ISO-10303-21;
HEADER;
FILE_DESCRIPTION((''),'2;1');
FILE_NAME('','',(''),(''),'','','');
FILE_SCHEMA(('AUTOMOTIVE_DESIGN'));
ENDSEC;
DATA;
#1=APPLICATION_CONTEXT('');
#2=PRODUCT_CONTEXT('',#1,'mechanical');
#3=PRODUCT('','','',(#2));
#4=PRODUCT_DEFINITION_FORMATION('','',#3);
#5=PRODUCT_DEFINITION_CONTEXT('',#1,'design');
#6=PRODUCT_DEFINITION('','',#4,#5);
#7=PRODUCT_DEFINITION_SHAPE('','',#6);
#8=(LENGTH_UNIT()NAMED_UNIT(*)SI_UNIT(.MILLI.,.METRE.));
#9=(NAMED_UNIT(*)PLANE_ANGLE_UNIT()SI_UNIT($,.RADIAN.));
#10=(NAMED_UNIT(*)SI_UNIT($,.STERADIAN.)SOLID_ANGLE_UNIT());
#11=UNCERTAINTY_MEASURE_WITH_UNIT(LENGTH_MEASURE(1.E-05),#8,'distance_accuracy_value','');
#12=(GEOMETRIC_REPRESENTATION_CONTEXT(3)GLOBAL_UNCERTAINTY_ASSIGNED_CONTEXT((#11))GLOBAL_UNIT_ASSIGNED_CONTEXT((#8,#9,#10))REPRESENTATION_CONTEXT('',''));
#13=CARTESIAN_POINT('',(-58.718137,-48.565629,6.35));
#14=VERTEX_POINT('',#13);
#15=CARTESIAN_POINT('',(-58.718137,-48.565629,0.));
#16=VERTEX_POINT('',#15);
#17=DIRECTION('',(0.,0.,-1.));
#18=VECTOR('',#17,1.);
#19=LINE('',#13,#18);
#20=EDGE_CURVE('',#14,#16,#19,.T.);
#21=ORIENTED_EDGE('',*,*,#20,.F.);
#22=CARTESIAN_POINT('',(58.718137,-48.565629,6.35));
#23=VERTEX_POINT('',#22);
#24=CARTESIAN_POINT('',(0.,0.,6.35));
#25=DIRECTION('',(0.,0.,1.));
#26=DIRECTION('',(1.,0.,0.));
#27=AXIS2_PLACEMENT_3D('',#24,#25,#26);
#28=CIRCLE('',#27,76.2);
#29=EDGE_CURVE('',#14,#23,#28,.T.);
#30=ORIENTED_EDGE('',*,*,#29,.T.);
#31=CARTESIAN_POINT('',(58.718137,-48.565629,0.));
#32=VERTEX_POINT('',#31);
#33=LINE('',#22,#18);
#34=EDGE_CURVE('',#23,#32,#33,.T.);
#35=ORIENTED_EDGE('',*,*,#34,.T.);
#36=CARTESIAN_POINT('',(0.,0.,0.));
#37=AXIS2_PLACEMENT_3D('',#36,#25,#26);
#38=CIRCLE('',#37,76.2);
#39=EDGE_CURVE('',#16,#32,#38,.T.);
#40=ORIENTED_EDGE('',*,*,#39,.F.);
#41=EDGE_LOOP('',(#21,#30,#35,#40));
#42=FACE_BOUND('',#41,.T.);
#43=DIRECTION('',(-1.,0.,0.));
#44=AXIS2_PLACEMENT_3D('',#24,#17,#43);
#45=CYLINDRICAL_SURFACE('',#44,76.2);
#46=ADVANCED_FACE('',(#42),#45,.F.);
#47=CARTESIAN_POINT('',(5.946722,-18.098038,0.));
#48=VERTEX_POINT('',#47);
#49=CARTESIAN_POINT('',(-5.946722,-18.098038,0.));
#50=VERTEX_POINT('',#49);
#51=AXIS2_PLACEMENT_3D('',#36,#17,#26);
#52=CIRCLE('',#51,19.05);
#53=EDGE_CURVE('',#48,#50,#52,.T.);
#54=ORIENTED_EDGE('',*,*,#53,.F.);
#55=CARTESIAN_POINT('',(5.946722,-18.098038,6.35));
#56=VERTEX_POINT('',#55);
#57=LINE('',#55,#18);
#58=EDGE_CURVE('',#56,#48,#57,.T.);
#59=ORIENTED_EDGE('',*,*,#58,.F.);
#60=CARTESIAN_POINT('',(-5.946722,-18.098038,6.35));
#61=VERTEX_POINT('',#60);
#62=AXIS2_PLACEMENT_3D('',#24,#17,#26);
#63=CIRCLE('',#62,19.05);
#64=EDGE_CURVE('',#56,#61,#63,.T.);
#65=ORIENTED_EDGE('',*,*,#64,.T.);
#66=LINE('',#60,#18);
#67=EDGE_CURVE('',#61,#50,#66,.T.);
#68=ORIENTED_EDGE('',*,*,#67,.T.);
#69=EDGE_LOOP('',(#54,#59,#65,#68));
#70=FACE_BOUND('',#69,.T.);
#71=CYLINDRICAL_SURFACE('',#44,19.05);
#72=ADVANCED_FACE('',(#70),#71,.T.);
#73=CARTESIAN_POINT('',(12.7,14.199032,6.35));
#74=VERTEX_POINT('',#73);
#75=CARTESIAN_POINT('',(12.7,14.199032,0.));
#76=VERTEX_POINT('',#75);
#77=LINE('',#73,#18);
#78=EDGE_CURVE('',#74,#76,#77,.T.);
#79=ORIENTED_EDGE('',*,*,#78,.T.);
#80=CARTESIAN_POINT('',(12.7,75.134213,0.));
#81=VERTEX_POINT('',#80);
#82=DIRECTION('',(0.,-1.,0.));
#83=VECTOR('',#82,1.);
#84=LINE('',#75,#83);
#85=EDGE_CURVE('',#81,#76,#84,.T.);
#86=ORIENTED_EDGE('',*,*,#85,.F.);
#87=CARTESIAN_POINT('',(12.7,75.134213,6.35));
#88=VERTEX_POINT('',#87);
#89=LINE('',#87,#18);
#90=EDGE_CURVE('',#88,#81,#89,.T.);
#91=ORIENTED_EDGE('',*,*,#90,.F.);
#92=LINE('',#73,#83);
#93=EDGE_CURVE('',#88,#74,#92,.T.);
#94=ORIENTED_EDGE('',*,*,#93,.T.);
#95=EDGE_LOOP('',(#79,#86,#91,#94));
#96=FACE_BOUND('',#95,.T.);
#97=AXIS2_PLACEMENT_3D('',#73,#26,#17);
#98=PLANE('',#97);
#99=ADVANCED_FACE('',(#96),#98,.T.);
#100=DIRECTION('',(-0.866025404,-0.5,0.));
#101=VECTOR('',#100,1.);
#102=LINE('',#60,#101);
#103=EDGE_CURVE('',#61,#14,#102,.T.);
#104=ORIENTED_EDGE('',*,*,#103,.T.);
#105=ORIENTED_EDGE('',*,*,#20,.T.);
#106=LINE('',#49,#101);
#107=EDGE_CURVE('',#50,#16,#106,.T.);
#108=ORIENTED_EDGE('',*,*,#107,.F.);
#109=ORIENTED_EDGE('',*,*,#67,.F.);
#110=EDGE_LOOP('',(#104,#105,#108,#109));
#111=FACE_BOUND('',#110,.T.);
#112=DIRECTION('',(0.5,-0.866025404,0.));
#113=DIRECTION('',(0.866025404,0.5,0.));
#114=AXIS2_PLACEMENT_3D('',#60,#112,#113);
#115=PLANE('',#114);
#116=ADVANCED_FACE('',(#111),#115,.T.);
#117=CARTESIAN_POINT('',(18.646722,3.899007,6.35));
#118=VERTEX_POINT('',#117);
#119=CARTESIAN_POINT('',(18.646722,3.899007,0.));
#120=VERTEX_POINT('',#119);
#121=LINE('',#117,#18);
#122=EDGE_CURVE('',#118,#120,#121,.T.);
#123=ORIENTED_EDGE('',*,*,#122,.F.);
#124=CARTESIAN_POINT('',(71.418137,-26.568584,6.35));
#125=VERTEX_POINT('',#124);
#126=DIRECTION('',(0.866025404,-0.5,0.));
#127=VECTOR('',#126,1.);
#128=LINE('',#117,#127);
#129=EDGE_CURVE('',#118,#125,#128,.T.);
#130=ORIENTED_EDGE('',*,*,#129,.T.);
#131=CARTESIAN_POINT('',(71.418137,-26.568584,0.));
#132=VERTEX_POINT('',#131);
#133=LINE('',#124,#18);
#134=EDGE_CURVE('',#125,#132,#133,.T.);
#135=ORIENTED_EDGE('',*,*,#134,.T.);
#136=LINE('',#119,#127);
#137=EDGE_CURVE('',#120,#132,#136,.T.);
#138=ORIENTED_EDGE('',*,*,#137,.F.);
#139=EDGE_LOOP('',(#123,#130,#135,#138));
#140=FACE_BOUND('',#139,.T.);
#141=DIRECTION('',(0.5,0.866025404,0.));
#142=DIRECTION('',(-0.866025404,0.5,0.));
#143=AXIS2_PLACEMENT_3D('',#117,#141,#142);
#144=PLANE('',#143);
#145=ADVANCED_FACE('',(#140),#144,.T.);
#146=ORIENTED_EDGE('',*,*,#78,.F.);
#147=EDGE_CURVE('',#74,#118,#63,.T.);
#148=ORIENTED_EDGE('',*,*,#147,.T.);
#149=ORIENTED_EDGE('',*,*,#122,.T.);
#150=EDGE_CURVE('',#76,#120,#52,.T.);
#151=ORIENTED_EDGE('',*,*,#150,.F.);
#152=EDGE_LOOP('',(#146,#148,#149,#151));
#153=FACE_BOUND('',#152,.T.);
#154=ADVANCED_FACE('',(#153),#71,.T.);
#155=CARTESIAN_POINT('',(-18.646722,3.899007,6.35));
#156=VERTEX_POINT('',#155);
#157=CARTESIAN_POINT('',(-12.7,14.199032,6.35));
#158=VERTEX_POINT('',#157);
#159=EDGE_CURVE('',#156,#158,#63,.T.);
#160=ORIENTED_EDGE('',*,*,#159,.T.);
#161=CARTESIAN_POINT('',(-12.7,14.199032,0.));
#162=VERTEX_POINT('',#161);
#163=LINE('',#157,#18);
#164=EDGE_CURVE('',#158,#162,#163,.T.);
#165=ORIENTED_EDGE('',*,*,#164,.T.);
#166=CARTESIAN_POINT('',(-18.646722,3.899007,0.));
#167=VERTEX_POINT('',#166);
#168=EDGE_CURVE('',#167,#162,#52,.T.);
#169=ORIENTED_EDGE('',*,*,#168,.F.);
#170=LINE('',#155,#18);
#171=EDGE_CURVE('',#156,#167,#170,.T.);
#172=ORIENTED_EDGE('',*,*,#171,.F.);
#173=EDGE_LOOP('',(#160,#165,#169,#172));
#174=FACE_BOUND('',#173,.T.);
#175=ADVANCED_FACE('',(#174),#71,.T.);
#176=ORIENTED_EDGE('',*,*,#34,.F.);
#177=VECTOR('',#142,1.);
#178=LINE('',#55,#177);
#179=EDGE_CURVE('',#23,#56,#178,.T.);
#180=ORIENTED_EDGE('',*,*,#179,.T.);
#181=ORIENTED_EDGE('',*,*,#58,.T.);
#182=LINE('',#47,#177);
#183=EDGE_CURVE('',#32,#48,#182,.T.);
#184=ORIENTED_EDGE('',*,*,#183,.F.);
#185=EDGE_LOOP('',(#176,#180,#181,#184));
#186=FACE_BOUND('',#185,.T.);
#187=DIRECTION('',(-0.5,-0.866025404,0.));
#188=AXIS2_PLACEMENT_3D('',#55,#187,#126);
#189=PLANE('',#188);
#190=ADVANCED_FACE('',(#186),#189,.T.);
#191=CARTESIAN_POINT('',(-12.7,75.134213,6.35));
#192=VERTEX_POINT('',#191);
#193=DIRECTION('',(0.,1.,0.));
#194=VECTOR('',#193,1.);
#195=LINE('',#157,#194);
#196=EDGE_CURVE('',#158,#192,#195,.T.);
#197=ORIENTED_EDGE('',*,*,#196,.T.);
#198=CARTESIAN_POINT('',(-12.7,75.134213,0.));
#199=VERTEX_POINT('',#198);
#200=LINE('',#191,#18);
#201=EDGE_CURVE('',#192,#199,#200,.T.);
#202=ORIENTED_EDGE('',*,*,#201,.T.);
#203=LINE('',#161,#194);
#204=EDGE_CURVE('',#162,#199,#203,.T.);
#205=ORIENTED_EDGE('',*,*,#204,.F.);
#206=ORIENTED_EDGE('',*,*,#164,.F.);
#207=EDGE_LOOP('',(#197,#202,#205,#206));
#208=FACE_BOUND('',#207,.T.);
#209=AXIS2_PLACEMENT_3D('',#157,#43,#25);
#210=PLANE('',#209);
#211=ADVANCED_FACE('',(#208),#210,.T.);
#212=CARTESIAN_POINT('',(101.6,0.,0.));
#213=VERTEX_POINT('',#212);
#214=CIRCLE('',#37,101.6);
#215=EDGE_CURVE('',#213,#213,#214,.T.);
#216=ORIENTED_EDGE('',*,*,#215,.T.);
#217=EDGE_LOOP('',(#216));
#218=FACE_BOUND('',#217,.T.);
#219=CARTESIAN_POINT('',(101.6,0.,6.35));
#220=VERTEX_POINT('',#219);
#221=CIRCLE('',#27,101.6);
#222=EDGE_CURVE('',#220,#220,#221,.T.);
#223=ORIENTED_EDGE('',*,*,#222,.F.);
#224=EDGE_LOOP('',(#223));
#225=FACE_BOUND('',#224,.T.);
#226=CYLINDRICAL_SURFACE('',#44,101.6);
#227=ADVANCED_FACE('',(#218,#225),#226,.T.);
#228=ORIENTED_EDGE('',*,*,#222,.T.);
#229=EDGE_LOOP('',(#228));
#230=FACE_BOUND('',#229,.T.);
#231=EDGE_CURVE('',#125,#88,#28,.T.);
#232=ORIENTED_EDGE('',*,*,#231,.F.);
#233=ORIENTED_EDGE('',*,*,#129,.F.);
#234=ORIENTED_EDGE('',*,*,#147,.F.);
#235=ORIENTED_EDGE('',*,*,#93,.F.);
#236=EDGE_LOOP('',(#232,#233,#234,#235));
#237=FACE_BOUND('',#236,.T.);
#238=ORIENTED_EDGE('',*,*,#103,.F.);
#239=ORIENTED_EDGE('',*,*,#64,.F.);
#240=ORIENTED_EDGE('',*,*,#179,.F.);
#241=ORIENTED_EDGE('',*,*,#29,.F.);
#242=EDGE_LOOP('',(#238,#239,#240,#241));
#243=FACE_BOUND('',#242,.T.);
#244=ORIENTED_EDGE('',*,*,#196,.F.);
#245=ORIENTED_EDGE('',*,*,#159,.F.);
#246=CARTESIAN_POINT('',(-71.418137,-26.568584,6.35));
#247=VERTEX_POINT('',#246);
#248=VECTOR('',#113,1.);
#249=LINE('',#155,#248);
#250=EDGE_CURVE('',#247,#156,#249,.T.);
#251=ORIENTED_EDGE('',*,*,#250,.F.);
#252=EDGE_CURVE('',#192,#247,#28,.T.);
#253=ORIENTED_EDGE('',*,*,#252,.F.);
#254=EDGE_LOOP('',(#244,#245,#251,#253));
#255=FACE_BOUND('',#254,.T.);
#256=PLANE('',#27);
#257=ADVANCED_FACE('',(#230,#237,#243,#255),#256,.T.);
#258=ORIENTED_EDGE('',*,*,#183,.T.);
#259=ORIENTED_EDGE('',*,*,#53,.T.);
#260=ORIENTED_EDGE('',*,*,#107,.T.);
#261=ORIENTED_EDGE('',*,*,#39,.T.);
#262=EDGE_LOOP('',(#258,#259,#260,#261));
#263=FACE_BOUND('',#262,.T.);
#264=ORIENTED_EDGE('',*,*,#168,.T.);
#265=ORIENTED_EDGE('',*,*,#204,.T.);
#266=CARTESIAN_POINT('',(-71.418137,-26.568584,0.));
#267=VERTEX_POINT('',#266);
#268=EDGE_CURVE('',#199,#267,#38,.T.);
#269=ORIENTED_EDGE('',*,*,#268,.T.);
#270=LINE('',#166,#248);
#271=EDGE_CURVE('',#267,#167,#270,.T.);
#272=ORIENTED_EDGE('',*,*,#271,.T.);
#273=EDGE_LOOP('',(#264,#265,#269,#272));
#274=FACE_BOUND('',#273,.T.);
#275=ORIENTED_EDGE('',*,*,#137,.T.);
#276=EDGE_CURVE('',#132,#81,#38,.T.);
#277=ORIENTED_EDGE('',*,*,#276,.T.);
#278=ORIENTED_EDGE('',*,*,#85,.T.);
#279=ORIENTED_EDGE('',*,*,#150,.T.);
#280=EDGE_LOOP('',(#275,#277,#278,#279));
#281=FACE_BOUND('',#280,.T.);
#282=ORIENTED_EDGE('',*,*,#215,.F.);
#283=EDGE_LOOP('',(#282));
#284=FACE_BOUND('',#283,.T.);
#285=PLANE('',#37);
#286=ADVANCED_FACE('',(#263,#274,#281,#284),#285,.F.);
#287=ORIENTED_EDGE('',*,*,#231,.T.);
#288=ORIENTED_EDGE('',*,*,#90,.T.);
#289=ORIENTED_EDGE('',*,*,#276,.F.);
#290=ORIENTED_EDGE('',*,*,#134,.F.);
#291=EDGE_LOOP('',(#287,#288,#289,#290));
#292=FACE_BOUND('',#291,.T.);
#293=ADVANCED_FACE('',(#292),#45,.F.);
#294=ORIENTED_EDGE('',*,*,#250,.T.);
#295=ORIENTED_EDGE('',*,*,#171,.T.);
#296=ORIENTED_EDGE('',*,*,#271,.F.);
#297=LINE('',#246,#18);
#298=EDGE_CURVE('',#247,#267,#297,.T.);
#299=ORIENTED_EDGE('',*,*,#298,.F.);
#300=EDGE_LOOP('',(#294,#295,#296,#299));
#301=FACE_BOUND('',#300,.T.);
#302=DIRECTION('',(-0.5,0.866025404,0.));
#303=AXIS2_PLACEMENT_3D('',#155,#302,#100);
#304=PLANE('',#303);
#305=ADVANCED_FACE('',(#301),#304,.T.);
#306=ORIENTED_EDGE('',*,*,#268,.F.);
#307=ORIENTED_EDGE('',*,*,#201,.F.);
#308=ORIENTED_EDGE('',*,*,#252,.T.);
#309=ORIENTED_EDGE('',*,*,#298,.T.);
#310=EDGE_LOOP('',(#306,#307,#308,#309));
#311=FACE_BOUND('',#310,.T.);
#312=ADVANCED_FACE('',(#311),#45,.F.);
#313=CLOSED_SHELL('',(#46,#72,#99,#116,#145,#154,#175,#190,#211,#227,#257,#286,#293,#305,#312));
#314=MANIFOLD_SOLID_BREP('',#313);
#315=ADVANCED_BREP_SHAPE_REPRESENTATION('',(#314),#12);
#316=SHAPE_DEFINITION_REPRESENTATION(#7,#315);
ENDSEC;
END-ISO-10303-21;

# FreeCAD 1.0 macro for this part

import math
import FreeCAD as App
import Part
import Sketcher

V = App.Vector
Q = App.Units.Quantity

doc = App.newDocument("Part")
body = doc.addObject("PartDesign::Body", "Body")

# Sketch on XY plane
sketch1 = body.newObject("Sketcher::SketchObject", "Sketch")
sketch1.AttachmentSupport = (doc.getObject("XY_Plane"), [""])
sketch1.MapMode = "FlatFace"
sketch1.addGeometry(Part.Circle(V(0, 0, 0), V(0, 0, 1), 102), False)
sketch1.addGeometry(Part.ArcOfCircle(Part.Circle(V(0, 0, 0), V(0, 0, 1), 19), math.radians(-108), math.radians(-72)), False)
sketch1.addGeometry(Part.LineSegment(V(6, -18, 0), V(59, -49, 0)), False)
sketch1.addGeometry(Part.ArcOfCircle(Part.Circle(V(0, 0, 0), V(0, 0, 1), 76), math.radians(-140), math.radians(-40)), False)
sketch1.addGeometry(Part.LineSegment(V(-59, -49, 0), V(-6, -18, 0)), False)
sketch1.addGeometry(Part.LineSegment(V(-13, 75, 0), V(-13, 14, 0)), False)
sketch1.addGeometry(Part.ArcOfCircle(Part.Circle(V(0, 0, 0), V(0, 0, 1), 19), math.radians(132), math.radians(168)), False)
sketch1.addGeometry(Part.LineSegment(V(-19, 4, 0), V(-71, -27, 0)), False)
sketch1.addGeometry(Part.ArcOfCircle(Part.Circle(V(0, 0, 0), V(0, 0, 1), 76), math.radians(100), math.radians(200)), False)
sketch1.addGeometry(Part.ArcOfCircle(Part.Circle(V(0, 0, 0), V(0, 0, 1), 19), math.radians(12), math.radians(48)), False)
sketch1.addGeometry(Part.LineSegment(V(13, 14, 0), V(13, 75, 0)), False)
sketch1.addGeometry(Part.ArcOfCircle(Part.Circle(V(0, 0, 0), V(0, 0, 1), 76), math.radians(-20), math.radians(80)), False)
sketch1.addGeometry(Part.LineSegment(V(71, -27, 0), V(19, 4, 0)), False)
sketch1.addConstraint(Sketcher.Constraint("Coincident", 1, 2, 2, 1))
sketch1.addConstraint(Sketcher.Constraint("Coincident", 2, 2, 3, 2))
sketch1.addConstraint(Sketcher.Constraint("Coincident", 3, 1, 4, 1))
sketch1.addConstraint(Sketcher.Constraint("Coincident", 4, 2, 1, 1))
sketch1.addConstraint(Sketcher.Constraint("Coincident", 5, 2, 6, 1))
sketch1.addConstraint(Sketcher.Constraint("Coincident", 6, 2, 7, 1))
sketch1.addConstraint(Sketcher.Constraint("Coincident", 7, 2, 8, 2))
sketch1.addConstraint(Sketcher.Constraint("Coincident", 8, 1, 5, 1))
sketch1.addConstraint(Sketcher.Constraint("Coincident", 9, 2, 10, 1))
sketch1.addConstraint(Sketcher.Constraint("Coincident", 10, 2, 11, 2))
sketch1.addConstraint(Sketcher.Constraint("Coincident", 11, 1, 12, 1))
sketch1.addConstraint(Sketcher.Constraint("Coincident", 12, 2, 9, 1))
sketch1.addConstraint(Sketcher.Constraint("Vertical", 5))
sketch1.addConstraint(Sketcher.Constraint("Vertical", 10))
sketch1.addConstraint(Sketcher.Constraint("Coincident", 0, 3, -1, 1))
sketch1.addConstraint(Sketcher.Constraint("Coincident", 1, 3, -1, 1))
sketch1.addConstraint(Sketcher.Constraint("Coincident", 3, 3, -1, 1))
sketch1.addConstraint(Sketcher.Constraint("Coincident", 6, 3, -1, 1))
sketch1.addConstraint(Sketcher.Constraint("Coincident", 8, 3, -1, 1))
sketch1.addConstraint(Sketcher.Constraint("Coincident", 9, 3, -1, 1))
sketch1.addConstraint(Sketcher.Constraint("Coincident", 11, 3, -1, 1))
sketch1.addConstraint(Sketcher.Constraint("Equal", 1, 6))
sketch1.addConstraint(Sketcher.Constraint("Equal", 3, 8))
sketch1.addConstraint(Sketcher.Constraint("Equal", 6, 9))
sketch1.addConstraint(Sketcher.Constraint("Equal", 8, 11))
sketch1.addConstraint(Sketcher.Constraint("Parallel", 4, 7))
sketch1.addConstraint(Sketcher.Constraint("Parallel", 2, 12))
sketch1.addConstraint(Sketcher.Constraint("Horizontal", 2, 2, 3, 1))
sketch1.addConstraint(Sketcher.Constraint("Horizontal", 1, 2, 4, 2))
sketch1.addConstraint(Sketcher.Constraint("Horizontal", 5, 2, 9, 2))
sketch1.addConstraint(Sketcher.Constraint("Horizontal", 7, 2, 11, 1))
sketch1.addConstraint(Sketcher.Constraint("Equal", 4, 7))
sketch1.addConstraint(Sketcher.Constraint("Diameter", 0, Q("8 in")))
sketch1.addConstraint(Sketcher.Constraint("Radius", 3, Q("3 in")))
sketch1.addConstraint(Sketcher.Constraint("Radius", 1, Q("0.75 in")))
sketch1.addConstraint(Sketcher.Constraint("Angle", 2, Q("-30 deg")))
sketch1.addConstraint(Sketcher.Constraint("DistanceX", 8, 1, 10, 2, Q("1 in")))
sketch1.addConstraint(Sketcher.Constraint("DistanceX", 7, 2, 3, 1, Q("0.5 in")))
pad1 = body.newObject("PartDesign::Pad", "Pad")
pad1.Profile = sketch1
pad1.Length = Q("0.25 in")

doc.recompute()
